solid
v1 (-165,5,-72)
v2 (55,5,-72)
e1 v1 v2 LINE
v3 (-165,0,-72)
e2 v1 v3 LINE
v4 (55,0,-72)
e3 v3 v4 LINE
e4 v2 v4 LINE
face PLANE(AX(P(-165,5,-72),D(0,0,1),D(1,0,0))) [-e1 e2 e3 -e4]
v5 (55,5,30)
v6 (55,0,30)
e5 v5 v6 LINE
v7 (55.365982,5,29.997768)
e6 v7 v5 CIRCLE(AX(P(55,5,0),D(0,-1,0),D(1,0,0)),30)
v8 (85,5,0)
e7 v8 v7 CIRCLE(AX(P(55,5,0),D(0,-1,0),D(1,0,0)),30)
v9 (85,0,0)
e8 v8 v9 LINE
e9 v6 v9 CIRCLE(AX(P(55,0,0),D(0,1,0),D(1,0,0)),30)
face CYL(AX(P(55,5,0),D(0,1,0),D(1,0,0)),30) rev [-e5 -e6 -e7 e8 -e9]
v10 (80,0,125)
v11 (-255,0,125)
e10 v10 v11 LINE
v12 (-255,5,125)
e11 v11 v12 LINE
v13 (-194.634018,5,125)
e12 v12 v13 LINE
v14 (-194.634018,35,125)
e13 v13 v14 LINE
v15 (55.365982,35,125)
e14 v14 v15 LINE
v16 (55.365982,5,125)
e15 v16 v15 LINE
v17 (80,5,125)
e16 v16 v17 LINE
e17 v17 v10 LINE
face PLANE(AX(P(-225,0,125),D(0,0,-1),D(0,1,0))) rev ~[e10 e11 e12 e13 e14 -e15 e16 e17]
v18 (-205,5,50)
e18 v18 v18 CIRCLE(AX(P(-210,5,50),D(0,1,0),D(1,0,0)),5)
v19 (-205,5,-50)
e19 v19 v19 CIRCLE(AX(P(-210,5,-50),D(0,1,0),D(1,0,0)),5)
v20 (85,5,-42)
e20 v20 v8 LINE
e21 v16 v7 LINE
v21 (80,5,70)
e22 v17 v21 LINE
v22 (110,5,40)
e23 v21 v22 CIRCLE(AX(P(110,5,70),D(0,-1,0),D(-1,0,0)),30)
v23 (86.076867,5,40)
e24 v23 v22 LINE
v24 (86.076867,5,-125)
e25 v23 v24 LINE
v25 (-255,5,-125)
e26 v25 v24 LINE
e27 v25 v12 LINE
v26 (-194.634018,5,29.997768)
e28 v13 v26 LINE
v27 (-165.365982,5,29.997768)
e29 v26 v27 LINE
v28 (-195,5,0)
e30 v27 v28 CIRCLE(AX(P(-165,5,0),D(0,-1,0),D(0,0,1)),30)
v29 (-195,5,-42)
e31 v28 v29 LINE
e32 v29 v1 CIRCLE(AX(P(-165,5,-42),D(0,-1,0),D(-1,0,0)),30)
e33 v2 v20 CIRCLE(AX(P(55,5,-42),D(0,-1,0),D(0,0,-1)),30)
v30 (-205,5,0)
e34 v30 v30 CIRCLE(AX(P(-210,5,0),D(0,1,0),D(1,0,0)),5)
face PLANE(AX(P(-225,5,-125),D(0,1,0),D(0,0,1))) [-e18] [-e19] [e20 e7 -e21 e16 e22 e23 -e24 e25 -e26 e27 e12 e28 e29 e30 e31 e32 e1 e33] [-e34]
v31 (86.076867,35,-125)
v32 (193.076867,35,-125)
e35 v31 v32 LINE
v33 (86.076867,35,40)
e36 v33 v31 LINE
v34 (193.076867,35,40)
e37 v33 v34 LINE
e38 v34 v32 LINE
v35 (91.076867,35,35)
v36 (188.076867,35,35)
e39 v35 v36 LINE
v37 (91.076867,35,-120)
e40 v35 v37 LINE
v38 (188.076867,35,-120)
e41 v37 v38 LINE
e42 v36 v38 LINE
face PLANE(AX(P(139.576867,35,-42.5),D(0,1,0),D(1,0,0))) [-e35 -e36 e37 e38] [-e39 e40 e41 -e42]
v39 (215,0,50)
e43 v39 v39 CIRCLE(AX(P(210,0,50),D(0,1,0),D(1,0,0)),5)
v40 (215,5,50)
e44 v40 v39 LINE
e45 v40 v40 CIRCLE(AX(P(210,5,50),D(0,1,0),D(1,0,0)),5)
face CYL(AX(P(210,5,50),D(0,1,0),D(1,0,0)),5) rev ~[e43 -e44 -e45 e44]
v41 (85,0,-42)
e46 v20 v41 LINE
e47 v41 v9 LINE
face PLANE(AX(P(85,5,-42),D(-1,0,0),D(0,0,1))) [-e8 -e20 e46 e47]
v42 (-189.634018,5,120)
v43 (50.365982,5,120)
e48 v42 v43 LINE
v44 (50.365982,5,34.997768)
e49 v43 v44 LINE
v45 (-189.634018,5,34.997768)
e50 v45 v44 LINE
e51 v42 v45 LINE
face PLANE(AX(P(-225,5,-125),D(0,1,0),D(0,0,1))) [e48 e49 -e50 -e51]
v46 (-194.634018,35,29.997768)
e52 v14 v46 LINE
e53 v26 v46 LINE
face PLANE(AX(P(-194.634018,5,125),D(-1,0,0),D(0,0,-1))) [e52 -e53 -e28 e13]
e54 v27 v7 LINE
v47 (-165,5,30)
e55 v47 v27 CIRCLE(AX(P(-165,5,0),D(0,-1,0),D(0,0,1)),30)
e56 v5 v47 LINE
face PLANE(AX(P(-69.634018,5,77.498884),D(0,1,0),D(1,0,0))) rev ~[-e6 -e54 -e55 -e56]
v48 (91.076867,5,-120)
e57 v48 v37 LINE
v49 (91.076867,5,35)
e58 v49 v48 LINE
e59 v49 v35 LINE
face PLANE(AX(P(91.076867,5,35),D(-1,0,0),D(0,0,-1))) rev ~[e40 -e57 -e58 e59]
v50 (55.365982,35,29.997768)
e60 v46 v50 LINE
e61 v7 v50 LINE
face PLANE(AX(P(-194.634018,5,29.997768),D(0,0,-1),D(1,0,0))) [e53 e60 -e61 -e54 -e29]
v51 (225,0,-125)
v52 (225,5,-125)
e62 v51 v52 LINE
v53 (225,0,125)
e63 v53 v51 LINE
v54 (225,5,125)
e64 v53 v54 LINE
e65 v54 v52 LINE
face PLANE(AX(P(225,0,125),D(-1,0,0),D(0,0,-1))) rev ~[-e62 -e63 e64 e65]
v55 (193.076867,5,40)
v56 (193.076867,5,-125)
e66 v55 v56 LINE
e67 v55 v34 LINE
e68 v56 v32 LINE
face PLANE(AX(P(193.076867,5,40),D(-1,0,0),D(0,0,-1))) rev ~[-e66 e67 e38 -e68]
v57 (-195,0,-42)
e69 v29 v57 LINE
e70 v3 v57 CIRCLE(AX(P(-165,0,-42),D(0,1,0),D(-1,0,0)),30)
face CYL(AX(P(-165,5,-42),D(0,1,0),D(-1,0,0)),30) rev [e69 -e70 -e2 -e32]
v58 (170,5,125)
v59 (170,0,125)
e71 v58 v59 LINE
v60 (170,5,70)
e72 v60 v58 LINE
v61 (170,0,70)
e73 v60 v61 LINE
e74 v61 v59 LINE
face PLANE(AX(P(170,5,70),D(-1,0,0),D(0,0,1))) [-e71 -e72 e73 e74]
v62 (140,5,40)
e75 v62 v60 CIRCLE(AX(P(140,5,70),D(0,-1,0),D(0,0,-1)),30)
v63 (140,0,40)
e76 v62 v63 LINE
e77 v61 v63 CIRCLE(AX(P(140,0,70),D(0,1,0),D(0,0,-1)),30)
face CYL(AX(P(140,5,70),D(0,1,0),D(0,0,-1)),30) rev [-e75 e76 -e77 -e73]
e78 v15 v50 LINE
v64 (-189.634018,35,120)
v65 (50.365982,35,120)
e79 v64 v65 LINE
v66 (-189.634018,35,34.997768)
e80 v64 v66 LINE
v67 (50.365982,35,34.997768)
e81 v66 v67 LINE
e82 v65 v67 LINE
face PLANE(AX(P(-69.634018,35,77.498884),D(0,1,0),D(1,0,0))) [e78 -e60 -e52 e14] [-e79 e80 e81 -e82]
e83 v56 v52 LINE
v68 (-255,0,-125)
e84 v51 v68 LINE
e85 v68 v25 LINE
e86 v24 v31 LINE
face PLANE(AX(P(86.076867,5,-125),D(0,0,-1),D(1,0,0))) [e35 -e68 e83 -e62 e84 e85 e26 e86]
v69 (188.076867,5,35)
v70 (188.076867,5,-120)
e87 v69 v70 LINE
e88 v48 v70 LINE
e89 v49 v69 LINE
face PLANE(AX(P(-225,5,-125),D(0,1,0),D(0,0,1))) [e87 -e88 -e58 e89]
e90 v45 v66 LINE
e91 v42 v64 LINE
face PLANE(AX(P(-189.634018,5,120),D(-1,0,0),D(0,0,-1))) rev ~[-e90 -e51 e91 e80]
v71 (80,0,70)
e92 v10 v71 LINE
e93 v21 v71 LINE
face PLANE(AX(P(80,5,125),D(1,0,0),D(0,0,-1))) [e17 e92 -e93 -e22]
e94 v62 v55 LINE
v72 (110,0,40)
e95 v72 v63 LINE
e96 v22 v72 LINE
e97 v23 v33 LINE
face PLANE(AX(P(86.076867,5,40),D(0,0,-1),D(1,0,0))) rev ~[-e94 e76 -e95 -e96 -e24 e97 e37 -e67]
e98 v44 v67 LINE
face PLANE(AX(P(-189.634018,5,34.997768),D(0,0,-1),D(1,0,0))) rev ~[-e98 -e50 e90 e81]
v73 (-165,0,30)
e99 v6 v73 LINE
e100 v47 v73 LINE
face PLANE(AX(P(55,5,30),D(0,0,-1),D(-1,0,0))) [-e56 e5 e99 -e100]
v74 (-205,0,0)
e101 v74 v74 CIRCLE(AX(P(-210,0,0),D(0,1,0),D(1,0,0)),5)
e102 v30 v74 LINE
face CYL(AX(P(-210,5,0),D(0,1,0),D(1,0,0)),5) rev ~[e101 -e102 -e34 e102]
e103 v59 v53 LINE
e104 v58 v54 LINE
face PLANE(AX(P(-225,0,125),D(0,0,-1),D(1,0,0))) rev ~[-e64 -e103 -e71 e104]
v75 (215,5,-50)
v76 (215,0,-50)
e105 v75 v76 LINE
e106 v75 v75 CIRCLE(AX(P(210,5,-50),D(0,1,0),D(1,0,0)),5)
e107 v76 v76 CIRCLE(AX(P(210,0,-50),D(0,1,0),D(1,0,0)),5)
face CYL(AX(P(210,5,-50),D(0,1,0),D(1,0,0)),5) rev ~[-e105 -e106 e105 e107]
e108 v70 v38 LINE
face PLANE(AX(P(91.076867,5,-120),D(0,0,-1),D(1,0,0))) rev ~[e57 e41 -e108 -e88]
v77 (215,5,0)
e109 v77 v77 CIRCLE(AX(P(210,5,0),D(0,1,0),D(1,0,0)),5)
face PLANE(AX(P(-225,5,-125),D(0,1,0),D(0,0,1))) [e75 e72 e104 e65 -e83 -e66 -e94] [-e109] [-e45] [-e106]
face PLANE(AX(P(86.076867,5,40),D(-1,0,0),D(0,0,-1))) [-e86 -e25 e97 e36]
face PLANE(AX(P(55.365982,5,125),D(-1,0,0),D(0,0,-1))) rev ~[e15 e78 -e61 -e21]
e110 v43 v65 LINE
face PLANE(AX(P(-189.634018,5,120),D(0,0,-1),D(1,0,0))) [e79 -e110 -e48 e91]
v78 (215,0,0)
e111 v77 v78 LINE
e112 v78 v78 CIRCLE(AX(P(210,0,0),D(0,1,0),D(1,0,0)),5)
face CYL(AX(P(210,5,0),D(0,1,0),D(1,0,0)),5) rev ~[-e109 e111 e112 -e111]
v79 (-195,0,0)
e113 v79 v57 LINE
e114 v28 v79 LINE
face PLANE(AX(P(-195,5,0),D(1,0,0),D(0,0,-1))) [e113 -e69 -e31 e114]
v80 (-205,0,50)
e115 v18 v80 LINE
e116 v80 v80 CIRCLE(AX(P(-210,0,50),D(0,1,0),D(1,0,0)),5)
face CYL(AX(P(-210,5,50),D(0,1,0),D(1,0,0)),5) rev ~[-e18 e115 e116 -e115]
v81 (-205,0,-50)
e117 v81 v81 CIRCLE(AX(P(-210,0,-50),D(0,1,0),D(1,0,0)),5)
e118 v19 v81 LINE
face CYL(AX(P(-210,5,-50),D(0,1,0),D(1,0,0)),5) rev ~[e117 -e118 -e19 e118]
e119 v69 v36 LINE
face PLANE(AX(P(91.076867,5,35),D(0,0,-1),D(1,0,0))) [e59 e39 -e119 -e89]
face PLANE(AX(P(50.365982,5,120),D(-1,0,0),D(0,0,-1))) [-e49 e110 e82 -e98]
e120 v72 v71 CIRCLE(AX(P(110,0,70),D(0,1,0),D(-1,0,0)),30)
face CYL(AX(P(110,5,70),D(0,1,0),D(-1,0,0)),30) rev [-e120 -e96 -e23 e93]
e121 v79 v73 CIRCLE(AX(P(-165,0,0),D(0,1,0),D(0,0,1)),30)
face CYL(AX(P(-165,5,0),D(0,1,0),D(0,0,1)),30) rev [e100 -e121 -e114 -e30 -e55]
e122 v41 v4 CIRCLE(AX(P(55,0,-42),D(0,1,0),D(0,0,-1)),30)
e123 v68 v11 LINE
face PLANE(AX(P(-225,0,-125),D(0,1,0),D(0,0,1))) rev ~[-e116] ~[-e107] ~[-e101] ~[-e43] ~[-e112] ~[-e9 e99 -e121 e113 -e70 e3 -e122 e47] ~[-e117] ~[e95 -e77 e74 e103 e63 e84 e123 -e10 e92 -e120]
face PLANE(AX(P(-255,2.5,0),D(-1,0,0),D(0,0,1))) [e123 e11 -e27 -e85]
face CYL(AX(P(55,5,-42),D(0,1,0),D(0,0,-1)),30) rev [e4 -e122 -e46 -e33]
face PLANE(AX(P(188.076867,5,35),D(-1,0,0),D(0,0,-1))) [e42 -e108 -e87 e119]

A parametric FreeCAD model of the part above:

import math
import FreeCAD as App
import Part
import Sketcher
Q = App.Units.Quantity


def add_polygon(sketch, points):
    """Adds a closed chain of lines whose ends are joined by coincident constraints."""
    first, n = sketch.GeometryCount, len(points)
    for a, b in zip(points, points[1:] + points[:1]):
        sketch.addGeometry(Part.LineSegment(App.Vector(*a, 0), App.Vector(*b, 0)), False)
    for i in range(n):
        sketch.addConstraint(Sketcher.Constraint("Coincident", first + i, 2, first + (i + 1) % n, 1))

doc = App.newDocument("Part")
body = doc.addObject("PartDesign::Body", "Body")

sketch1 = body.newObject("Sketcher::SketchObject", "Sketch")
sketch1.AttachmentSupport = (doc.getObject("XZ_Plane"), [""])
sketch1.MapMode = "FlatFace"
add_polygon(sketch1, [(-225, -125), (-225, 125), (225, 125), (225, -125)])
sketch1.addConstraint([
    Sketcher.Constraint("Vertical", 0),
    Sketcher.Constraint("Horizontal", 1),
    Sketcher.Constraint("Vertical", 2),
    Sketcher.Constraint("Horizontal", 3),
    Sketcher.Constraint("Symmetric", 0, 2, 2, 2, -1, 1),
    Sketcher.Constraint("DistanceX", 1, 1, 1, 2, Q("450 mm")),
    Sketcher.Constraint("DistanceY", 0, 1, 0, 2, Q("250 mm")),
])
pad1 = body.newObject("PartDesign::Pad", "Pad")
pad1.Profile = sketch1
pad1.Length = 5
pad1.Reversed = True

sketch2 = body.newObject("Sketcher::SketchObject", "Sketch001")
sketch2.AttachmentSupport = (doc.getObject("XZ_Plane"), [""])
sketch2.MapMode = "FlatFace"
sketch2.AttachmentOffset = App.Placement(App.Vector(0, 0, -5), App.Rotation())
sketch2.addGeometry([
    Part.LineSegment(App.Vector(55, -72, 0), App.Vector(-165, -72, 0)),
    Part.ArcOfCircle(Part.Circle(App.Vector(-165, -42, 0), App.Vector(0, 0, 1), 30), math.radians(180), math.radians(270)),
    Part.LineSegment(App.Vector(-195, -42, 0), App.Vector(-195, 0, 0)),
    Part.ArcOfCircle(Part.Circle(App.Vector(-165, 0, 0), App.Vector(0, 0, 1), 30), math.radians(90), math.radians(180)),
    Part.LineSegment(App.Vector(-165, 30, 0), App.Vector(55, 30, 0)),
    Part.ArcOfCircle(Part.Circle(App.Vector(55, 0, 0), App.Vector(0, 0, 1), 30), math.radians(0), math.radians(90)),
    Part.LineSegment(App.Vector(85, 0, 0), App.Vector(85, -42, 0)),
    Part.ArcOfCircle(Part.Circle(App.Vector(55, -42, 0), App.Vector(0, 0, 1), 30), math.radians(-90), math.radians(0)),
    Part.LineSegment(App.Vector(140, 40, 0), App.Vector(110, 40, 0)),
    Part.ArcOfCircle(Part.Circle(App.Vector(110, 70, 0), App.Vector(0, 0, 1), 30), math.radians(180), math.radians(270)),
    Part.LineSegment(App.Vector(80, 70, 0), App.Vector(80, 125, 0)),
    Part.LineSegment(App.Vector(80, 125, 0), App.Vector(170, 125, 0)),
    Part.LineSegment(App.Vector(170, 125, 0), App.Vector(170, 70, 0)),
    Part.ArcOfCircle(Part.Circle(App.Vector(140, 70, 0), App.Vector(0, 0, 1), 30), math.radians(-90), math.radians(0)),
], False)
sketch2.addConstraint([
    Sketcher.Constraint("Tangent", 0, 2, 1, 2),
    Sketcher.Constraint("Tangent", 1, 1, 2, 1),
    Sketcher.Constraint("Tangent", 2, 2, 3, 2),
    Sketcher.Constraint("Tangent", 3, 1, 4, 1),
    Sketcher.Constraint("Tangent", 4, 2, 5, 2),
    Sketcher.Constraint("Tangent", 5, 1, 6, 1),
    Sketcher.Constraint("Tangent", 6, 2, 7, 2),
    Sketcher.Constraint("Tangent", 7, 1, 0, 1),
    Sketcher.Constraint("Tangent", 8, 2, 9, 2),
    Sketcher.Constraint("Tangent", 9, 1, 10, 1),
    Sketcher.Constraint("Coincident", 10, 2, 11, 1),
    Sketcher.Constraint("Coincident", 11, 2, 12, 1),
    Sketcher.Constraint("Tangent", 12, 2, 13, 2),
    Sketcher.Constraint("Tangent", 13, 1, 8, 1),
    Sketcher.Constraint("Horizontal", 0),
    Sketcher.Constraint("Vertical", 2),
    Sketcher.Constraint("Horizontal", 4),
    Sketcher.Constraint("Vertical", 6),
    Sketcher.Constraint("Horizontal", 8),
    Sketcher.Constraint("Vertical", 10),
    Sketcher.Constraint("Horizontal", 11),
    Sketcher.Constraint("Vertical", 12),
    Sketcher.Constraint("Equal", 1, 3),
    Sketcher.Constraint("Equal", 3, 5),
    Sketcher.Constraint("Equal", 5, 7),
    Sketcher.Constraint("Equal", 7, 9),
    Sketcher.Constraint("Equal", 9, 13),
    Sketcher.Constraint("PointOnObject", 3, 3, -1),
    Sketcher.Constraint("Radius", 1, Q("30 mm")),
    Sketcher.Constraint("DistanceX", 0, 2, 0, 1, Q("220 mm")),
    Sketcher.Constraint("DistanceX", 8, 2, 8, 1, Q("30 mm")),
    Sketcher.Constraint("DistanceY", 2, 1, 2, 2, Q("42 mm")),
    Sketcher.Constraint("DistanceY", 10, 1, 10, 2, Q("55 mm")),
    Sketcher.Constraint("DistanceX", 1, 3, -1, 1, Q("165 mm")),
    Sketcher.Constraint("DistanceX", -1, 1, 9, 3, Q("110 mm")),
    Sketcher.Constraint("DistanceY", -1, 1, 9, 3, Q("70 mm")),
])
pocket1 = body.newObject("PartDesign::Pocket", "Pocket")
pocket1.Profile = sketch2
pocket1.Length = 10
pocket1.Reversed = True

sketch3 = body.newObject("Sketcher::SketchObject", "Sketch002")
sketch3.AttachmentSupport = (doc.getObject("YZ_Plane"), [""])
sketch3.MapMode = "FlatFace"
sketch3.AttachmentOffset = App.Placement(App.Vector(0, 0, -225), App.Rotation())
add_polygon(sketch3, [(5, -125), (0, -125), (0, 125), (5, 125)])
sketch3.addConstraint([
    Sketcher.Constraint("Horizontal", 0),
    Sketcher.Constraint("Vertical", 1),
    Sketcher.Constraint("Horizontal", 2),
    Sketcher.Constraint("Vertical", 3),
    Sketcher.Constraint("Symmetric", 0, 2, 1, 2, -1, 1),
    Sketcher.Constraint("DistanceX", 0, 2, 0, 1, Q("5 mm")),
    Sketcher.Constraint("DistanceY", 1, 1, 1, 2, Q("250 mm")),
])
pad2 = body.newObject("PartDesign::Pad", "Pad001")
pad2.Profile = sketch3
pad2.Length = 30
pad2.Reversed = True

sketch4 = body.newObject("Sketcher::SketchObject", "Sketch003")
sketch4.AttachmentSupport = (doc.getObject("XZ_Plane"), [""])
sketch4.MapMode = "FlatFace"
sketch4.AttachmentOffset = App.Placement(App.Vector(0, 0, -5), App.Rotation())
sketch4.addGeometry([
    Part.Circle(App.Vector(210, 0, 0), App.Vector(0, 0, 1), 5),
    Part.Circle(App.Vector(210, -50, 0), App.Vector(0, 0, 1), 5),
    Part.Circle(App.Vector(210, 50, 0), App.Vector(0, 0, 1), 5),
    Part.Circle(App.Vector(-210, 50, 0), App.Vector(0, 0, 1), 5),
    Part.Circle(App.Vector(-210, 0, 0), App.Vector(0, 0, 1), 5),
    Part.Circle(App.Vector(-210, -50, 0), App.Vector(0, 0, 1), 5),
], False)
sketch4.addConstraint([
    Sketcher.Constraint("Equal", 0, 1),
    Sketcher.Constraint("Equal", 1, 2),
    Sketcher.Constraint("Equal", 2, 3),
    Sketcher.Constraint("Equal", 3, 4),
    Sketcher.Constraint("Equal", 4, 5),
    Sketcher.Constraint("Symmetric", 1, 3, 3, 3, -1, 1),
    Sketcher.Constraint("Symmetric", 0, 3, 4, 3, -1, 1),
    Sketcher.Constraint("Symmetric", 2, 3, 5, 3, -1, 1),
    Sketcher.Constraint("Symmetric", 2, 3, 3, 3, -2),
    Sketcher.Constraint("PointOnObject", 0, 3, -1),
    Sketcher.Constraint("Vertical", 0, 3, 1, 3),
    Sketcher.Constraint("Diameter", 0, Q("10 mm")),
    Sketcher.Constraint("DistanceX", -1, 1, 0, 3, Q("210 mm")),
    Sketcher.Constraint("DistanceY", 1, 3, -1, 1, Q("50 mm")),
])
pocket2 = body.newObject("PartDesign::Pocket", "Pocket001")
pocket2.Profile = sketch4
pocket2.Length = 30
pocket2.Reversed = True

sketch5 = body.newObject("Sketcher::SketchObject", "Sketch004")
sketch5.AttachmentSupport = (doc.getObject("XZ_Plane"), [""])
sketch5.MapMode = "FlatFace"
sketch5.AttachmentOffset = App.Placement(App.Vector(0, 0, -5), App.Rotation())
add_polygon(sketch5, [(86.076867, -125), (86.076867, 40), (193.076867, 40), (193.076867, -125)])
add_polygon(sketch5, [(188.076867, 35), (91.076867, 35), (91.076867, -120), (188.076867, -120)])
add_polygon(sketch5, [(-194.634018, 29.997768), (-194.634018, 125), (55.365982, 125), (55.365982, 29.997768)])
add_polygon(sketch5, [(50.365982, 120), (-189.634018, 120), (-189.634018, 34.997768), (50.365982, 34.997768)])
sketch5.addConstraint([
    Sketcher.Constraint("Vertical", 0),
    Sketcher.Constraint("Horizontal", 1),
    Sketcher.Constraint("Vertical", 2),
    Sketcher.Constraint("Horizontal", 3),
    Sketcher.Constraint("Horizontal", 4),
    Sketcher.Constraint("Vertical", 5),
    Sketcher.Constraint("Horizontal", 6),
    Sketcher.Constraint("Vertical", 7),
    Sketcher.Constraint("Vertical", 8),
    Sketcher.Constraint("Horizontal", 9),
    Sketcher.Constraint("Vertical", 10),
    Sketcher.Constraint("Horizontal", 11),
    Sketcher.Constraint("Horizontal", 12),
    Sketcher.Constraint("Vertical", 13),
    Sketcher.Constraint("Horizontal", 14),
    Sketcher.Constraint("Vertical", 15),
    Sketcher.Constraint("DistanceX", 1, 1, 1, 2, Q("107 mm")),
    Sketcher.Constraint("DistanceX", 4, 2, 4, 1, Q("97 mm")),
    Sketcher.Constraint("DistanceX", 9, 1, 9, 2, Q("250 mm")),
    Sketcher.Constraint("DistanceX", 12, 2, 12, 1, Q("240 mm")),
    Sketcher.Constraint("DistanceY", 0, 1, 0, 2, Q("165 mm")),
    Sketcher.Constraint("DistanceY", 5, 2, 5, 1, Q("155 mm")),
    Sketcher.Constraint("DistanceY", -1, 1, 0, 2, Q("40 mm")),
    Sketcher.Constraint("DistanceY", -1, 1, 4, 2, Q("35 mm")),
    Sketcher.Constraint("DistanceY", -1, 1, 8, 2, Q("125 mm")),
    Sketcher.Constraint("DistanceY", -1, 1, 12, 2, Q("120 mm")),
    Sketcher.Constraint("DistanceX", 0, 2, 4, 2, Q("5 mm")),
    Sketcher.Constraint("DistanceX", 8, 2, 12, 2, Q("5 mm")),
    Sketcher.Constraint("DistanceY", 11, 2, 13, 2, Q("5 mm")),
    Sketcher.Constraint("DistanceY", 8, 1, 8, 2, Q("95.002232 mm")),
    Sketcher.Constraint("DistanceX", 8, 2, -1, 1, Q("194.634018 mm")),
    Sketcher.Constraint("DistanceX", -1, 1, 0, 2, Q("86.076867 mm")),
])
pad3 = body.newObject("PartDesign::Pad", "Pad002")
pad3.Profile = sketch5
pad3.Length = 30
pad3.Reversed = True

doc.recompute()
